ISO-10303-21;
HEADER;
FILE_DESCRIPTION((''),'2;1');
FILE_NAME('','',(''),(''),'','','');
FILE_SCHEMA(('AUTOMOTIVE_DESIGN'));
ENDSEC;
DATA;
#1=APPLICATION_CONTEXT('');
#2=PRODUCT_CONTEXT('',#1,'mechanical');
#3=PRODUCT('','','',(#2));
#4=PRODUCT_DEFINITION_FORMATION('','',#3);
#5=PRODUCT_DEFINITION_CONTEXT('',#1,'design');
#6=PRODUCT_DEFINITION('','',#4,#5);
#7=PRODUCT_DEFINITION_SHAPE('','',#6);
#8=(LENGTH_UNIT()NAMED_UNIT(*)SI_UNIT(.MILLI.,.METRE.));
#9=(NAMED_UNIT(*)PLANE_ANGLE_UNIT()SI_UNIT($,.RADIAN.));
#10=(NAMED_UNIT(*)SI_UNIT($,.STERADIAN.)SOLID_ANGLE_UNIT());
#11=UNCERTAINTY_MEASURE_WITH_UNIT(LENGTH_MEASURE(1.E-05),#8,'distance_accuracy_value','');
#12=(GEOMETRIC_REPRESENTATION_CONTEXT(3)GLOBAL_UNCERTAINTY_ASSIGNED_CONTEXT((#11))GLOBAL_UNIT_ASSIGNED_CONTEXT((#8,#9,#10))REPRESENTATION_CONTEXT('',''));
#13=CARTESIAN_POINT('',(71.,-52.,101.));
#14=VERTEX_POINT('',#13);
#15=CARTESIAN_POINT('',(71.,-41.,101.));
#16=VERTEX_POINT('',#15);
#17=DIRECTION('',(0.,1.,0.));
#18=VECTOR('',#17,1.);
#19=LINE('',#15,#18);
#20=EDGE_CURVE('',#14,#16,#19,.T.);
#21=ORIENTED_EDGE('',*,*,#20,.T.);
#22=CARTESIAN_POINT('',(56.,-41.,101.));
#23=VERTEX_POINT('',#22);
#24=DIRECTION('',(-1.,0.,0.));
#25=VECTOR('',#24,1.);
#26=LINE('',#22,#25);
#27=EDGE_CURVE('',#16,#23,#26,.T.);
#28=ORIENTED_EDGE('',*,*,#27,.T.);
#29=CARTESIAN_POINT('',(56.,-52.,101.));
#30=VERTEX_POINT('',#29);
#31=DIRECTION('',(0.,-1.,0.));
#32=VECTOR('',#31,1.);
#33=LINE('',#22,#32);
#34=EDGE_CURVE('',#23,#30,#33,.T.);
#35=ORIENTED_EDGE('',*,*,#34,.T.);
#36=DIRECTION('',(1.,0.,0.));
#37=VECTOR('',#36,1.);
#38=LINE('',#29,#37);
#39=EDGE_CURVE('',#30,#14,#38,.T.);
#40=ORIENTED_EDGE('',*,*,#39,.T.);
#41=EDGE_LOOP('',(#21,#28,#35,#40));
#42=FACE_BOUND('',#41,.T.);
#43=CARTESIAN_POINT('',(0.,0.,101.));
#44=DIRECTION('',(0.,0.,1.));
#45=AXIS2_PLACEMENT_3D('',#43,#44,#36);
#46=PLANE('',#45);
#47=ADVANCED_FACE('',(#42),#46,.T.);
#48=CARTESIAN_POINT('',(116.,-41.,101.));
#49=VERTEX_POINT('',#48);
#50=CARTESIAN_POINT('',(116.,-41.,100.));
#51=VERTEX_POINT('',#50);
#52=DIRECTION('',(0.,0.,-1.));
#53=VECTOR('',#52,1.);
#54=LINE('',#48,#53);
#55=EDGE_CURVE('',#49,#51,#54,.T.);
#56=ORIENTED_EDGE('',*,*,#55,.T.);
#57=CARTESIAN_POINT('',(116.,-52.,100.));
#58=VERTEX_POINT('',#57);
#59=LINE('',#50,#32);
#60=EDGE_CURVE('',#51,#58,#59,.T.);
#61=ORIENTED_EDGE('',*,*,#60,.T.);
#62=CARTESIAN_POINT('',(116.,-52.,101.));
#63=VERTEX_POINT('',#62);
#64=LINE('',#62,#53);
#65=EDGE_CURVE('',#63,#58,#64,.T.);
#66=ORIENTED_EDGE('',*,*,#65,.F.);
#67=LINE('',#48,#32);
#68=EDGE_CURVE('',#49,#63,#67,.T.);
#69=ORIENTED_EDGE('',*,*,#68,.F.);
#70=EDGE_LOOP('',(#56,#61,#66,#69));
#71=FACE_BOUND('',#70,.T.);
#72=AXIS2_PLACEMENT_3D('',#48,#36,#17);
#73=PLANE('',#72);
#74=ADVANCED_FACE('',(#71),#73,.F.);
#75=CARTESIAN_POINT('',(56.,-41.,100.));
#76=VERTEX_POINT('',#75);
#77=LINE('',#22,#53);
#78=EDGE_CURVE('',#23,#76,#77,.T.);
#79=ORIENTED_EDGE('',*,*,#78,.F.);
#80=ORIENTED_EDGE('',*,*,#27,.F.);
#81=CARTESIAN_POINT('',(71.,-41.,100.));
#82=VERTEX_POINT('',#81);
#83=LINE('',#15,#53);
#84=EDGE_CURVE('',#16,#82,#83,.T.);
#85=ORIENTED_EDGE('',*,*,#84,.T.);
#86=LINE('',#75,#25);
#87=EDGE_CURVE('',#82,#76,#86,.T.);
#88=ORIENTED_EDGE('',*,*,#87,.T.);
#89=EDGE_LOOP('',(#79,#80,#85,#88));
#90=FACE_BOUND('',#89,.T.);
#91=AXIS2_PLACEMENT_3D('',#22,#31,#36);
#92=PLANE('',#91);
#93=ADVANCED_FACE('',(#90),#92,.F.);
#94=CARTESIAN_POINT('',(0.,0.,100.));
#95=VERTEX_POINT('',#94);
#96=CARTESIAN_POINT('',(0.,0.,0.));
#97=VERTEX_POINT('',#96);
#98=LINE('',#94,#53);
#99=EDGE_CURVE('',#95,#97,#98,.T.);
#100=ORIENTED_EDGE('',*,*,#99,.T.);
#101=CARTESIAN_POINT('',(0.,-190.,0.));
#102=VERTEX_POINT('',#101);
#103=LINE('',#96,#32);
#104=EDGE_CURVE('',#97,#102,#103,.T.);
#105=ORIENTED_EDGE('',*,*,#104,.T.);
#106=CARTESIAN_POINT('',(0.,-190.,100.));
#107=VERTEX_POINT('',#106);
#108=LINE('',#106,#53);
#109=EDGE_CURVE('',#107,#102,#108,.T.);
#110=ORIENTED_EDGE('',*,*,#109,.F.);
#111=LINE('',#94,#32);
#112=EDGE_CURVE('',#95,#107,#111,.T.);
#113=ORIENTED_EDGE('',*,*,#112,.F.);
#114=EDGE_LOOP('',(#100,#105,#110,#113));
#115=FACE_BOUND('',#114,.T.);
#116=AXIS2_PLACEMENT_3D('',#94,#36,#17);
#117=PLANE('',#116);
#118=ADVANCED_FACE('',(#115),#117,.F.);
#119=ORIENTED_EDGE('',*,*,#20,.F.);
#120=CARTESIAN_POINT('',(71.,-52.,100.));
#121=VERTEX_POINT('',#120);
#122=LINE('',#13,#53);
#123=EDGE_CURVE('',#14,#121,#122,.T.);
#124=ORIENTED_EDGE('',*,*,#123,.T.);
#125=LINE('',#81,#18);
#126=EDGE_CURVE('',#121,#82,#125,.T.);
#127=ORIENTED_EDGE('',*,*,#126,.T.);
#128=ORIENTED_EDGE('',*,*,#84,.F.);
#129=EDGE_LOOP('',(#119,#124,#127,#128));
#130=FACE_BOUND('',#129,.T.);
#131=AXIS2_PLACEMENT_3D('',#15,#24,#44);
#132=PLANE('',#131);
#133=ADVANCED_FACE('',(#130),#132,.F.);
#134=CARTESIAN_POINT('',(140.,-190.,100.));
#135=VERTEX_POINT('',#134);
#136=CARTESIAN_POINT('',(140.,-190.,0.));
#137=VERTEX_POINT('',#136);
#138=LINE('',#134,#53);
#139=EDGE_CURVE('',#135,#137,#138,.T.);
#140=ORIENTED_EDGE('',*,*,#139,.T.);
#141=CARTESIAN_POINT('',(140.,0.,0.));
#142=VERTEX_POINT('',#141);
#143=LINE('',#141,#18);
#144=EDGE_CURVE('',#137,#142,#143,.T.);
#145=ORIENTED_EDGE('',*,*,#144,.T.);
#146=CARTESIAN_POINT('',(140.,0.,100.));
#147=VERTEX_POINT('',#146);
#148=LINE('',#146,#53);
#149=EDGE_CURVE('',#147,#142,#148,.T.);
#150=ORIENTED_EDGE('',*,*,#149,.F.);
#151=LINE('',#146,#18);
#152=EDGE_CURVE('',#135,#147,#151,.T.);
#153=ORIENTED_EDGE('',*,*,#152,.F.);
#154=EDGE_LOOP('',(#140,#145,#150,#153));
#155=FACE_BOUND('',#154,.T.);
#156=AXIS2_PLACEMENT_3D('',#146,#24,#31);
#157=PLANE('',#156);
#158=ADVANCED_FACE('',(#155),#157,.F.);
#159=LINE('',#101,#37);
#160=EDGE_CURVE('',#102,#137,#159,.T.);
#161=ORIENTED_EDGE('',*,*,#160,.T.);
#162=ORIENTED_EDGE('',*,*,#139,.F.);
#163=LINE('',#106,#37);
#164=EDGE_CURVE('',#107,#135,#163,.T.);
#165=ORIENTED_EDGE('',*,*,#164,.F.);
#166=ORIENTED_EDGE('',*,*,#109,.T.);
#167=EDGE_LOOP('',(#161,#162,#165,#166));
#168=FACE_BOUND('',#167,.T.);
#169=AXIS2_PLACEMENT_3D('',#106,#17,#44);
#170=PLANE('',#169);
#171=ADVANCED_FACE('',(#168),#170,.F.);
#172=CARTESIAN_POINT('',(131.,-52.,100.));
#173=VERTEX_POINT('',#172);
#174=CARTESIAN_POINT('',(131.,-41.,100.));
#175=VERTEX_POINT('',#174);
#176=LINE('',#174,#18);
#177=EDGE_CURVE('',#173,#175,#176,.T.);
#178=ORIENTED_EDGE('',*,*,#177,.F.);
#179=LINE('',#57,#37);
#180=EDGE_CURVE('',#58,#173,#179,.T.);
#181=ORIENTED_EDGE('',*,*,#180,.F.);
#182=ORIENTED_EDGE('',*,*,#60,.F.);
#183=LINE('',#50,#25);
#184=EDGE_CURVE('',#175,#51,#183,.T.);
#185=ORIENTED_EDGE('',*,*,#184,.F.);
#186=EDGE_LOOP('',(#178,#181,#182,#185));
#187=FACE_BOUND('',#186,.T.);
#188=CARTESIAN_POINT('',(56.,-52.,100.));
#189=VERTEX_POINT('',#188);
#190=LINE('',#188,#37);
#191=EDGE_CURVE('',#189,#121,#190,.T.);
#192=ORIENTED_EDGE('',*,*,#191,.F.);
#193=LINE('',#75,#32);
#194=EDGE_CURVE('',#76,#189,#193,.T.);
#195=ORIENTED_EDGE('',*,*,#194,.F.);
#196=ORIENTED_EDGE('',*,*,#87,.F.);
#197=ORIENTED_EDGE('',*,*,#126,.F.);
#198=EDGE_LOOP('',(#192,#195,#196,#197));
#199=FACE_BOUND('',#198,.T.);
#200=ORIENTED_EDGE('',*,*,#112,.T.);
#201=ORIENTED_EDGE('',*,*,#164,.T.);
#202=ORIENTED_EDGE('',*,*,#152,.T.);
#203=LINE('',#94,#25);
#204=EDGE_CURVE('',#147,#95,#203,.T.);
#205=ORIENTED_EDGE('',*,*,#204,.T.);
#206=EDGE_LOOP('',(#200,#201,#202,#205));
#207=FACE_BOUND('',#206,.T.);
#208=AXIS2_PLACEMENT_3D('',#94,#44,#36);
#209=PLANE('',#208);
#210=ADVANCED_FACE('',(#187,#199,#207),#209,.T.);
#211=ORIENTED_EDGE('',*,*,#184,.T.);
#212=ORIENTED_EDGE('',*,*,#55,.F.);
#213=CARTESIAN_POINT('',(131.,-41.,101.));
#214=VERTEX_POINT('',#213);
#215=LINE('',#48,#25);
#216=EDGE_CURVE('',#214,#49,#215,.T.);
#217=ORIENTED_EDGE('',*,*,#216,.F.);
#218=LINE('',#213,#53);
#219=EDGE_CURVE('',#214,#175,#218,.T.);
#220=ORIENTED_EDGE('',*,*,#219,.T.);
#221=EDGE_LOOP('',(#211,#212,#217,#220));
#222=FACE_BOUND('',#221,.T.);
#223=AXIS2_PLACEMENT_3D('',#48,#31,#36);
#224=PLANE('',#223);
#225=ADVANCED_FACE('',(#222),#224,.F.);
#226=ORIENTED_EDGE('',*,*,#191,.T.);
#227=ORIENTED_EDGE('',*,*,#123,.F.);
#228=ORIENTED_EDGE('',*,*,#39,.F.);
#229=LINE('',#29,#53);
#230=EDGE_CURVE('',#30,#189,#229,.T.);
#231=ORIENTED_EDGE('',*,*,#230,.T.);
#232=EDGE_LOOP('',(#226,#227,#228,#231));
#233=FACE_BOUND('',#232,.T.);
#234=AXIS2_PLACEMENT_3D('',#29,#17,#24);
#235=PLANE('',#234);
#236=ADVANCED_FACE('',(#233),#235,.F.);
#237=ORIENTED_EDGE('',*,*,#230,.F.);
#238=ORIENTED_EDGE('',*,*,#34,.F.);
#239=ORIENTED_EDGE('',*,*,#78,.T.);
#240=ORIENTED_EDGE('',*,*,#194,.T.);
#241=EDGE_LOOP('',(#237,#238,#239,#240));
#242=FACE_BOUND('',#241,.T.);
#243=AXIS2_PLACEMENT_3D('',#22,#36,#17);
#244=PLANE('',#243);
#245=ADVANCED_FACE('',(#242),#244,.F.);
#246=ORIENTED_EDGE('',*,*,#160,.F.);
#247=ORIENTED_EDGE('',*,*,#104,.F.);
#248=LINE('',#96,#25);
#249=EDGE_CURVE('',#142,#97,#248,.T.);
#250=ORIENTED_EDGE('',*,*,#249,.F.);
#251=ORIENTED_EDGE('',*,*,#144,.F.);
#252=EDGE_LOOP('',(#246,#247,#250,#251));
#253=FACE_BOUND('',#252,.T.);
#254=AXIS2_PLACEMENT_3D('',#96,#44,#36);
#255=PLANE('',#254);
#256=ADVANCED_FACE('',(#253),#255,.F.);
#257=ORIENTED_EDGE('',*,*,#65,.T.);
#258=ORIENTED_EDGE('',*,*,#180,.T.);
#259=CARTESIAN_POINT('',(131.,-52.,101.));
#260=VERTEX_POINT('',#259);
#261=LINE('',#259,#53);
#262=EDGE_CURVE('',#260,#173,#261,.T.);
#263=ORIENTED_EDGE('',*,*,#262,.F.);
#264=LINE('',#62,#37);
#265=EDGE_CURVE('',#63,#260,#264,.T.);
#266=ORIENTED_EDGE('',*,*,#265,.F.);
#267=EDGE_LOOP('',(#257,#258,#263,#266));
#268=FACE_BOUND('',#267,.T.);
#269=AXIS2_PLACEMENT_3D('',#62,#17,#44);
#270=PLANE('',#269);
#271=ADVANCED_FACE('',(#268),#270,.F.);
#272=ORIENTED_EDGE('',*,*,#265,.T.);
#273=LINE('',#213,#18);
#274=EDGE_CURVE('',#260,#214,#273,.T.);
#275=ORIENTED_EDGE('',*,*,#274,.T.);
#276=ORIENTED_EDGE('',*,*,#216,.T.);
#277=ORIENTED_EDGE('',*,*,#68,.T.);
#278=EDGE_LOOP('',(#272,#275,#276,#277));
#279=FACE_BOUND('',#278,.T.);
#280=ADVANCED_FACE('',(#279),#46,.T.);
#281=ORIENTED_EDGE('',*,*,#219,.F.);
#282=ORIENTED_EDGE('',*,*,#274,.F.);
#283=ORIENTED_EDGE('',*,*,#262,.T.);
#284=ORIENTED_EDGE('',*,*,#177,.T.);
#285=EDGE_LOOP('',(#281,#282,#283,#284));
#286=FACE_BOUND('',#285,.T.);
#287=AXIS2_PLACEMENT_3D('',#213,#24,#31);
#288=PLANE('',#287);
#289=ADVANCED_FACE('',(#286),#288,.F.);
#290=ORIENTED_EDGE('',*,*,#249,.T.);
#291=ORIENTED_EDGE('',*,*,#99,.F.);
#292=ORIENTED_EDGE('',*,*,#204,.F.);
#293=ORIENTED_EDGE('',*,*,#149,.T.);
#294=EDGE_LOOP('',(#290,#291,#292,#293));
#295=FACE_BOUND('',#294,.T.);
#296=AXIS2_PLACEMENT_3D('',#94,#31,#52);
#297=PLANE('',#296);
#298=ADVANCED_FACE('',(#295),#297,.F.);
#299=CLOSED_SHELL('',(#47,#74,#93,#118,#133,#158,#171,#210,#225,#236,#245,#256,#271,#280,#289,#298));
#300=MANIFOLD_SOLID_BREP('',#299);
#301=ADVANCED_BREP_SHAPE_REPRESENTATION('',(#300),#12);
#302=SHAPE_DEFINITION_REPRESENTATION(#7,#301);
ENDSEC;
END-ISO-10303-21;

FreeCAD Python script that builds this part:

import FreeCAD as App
import Part
import Sketcher
Q = App.Units.Quantity

doc = App.newDocument("Part")
body = doc.addObject("PartDesign::Body", "Body")

sketch1 = body.newObject("Sketcher::SketchObject", "Sketch")
sketch1.AttachmentSupport = (doc.getObject("XY_Plane"), [""])
sketch1.MapMode = "FlatFace"
sketch1.addGeometry(Part.LineSegment(App.Vector(0, 0, 0), App.Vector(0, -190, 0)), False)
sketch1.addGeometry(Part.LineSegment(App.Vector(0, -190, 0), App.Vector(140, -190, 0)), False)
sketch1.addGeometry(Part.LineSegment(App.Vector(140, -190, 0), App.Vector(140, 0, 0)), False)
sketch1.addGeometry(Part.LineSegment(App.Vector(140, 0, 0), App.Vector(0, 0, 0)), False)
sketch1.addConstraint(Sketcher.Constraint("Coincident", 0, 2, 1, 1))
sketch1.addConstraint(Sketcher.Constraint("Coincident", 1, 2, 2, 1))
sketch1.addConstraint(Sketcher.Constraint("Coincident", 2, 2, 3, 1))
sketch1.addConstraint(Sketcher.Constraint("Coincident", 3, 2, 0, 1))
sketch1.addConstraint(Sketcher.Constraint("Vertical", 0))
sketch1.addConstraint(Sketcher.Constraint("Horizontal", 1))
sketch1.addConstraint(Sketcher.Constraint("Vertical", 2))
sketch1.addConstraint(Sketcher.Constraint("Horizontal", 3))
sketch1.addConstraint(Sketcher.Constraint("Coincident", 3, 2, -1, 1))
sketch1.addConstraint(Sketcher.Constraint("DistanceX", 1, 1, 1, 2, Q("140 mm")))
sketch1.addConstraint(Sketcher.Constraint("DistanceY", 0, 2, 0, 1, Q("190 mm")))
pad1 = body.newObject("PartDesign::Pad", "Pad")
pad1.Profile = sketch1
pad1.Length = 100

sketch2 = body.newObject("Sketcher::SketchObject", "Sketch001")
sketch2.AttachmentSupport = (doc.getObject("XY_Plane"), [""])
sketch2.MapMode = "FlatFace"
sketch2.AttachmentOffset = App.Placement(App.Vector(0, 0, 100), App.Rotation())
sketch2.addGeometry(Part.LineSegment(App.Vector(116, -41, 0), App.Vector(116, -52, 0)), False)
sketch2.addGeometry(Part.LineSegment(App.Vector(116, -52, 0), App.Vector(131, -52, 0)), False)
sketch2.addGeometry(Part.LineSegment(App.Vector(131, -52, 0), App.Vector(131, -41, 0)), False)
sketch2.addGeometry(Part.LineSegment(App.Vector(131, -41, 0), App.Vector(116, -41, 0)), False)
sketch2.addGeometry(Part.LineSegment(App.Vector(56, -41, 0), App.Vector(56, -52, 0)), False)
sketch2.addGeometry(Part.LineSegment(App.Vector(56, -52, 0), App.Vector(71, -52, 0)), False)
sketch2.addGeometry(Part.LineSegment(App.Vector(71, -52, 0), App.Vector(71, -41, 0)), False)
sketch2.addGeometry(Part.LineSegment(App.Vector(71, -41, 0), App.Vector(56, -41, 0)), False)
sketch2.addConstraint(Sketcher.Constraint("Coincident", 0, 2, 1, 1))
sketch2.addConstraint(Sketcher.Constraint("Coincident", 1, 2, 2, 1))
sketch2.addConstraint(Sketcher.Constraint("Coincident", 2, 2, 3, 1))
sketch2.addConstraint(Sketcher.Constraint("Coincident", 3, 2, 0, 1))
sketch2.addConstraint(Sketcher.Constraint("Coincident", 4, 2, 5, 1))
sketch2.addConstraint(Sketcher.Constraint("Coincident", 5, 2, 6, 1))
sketch2.addConstraint(Sketcher.Constraint("Coincident", 6, 2, 7, 1))
sketch2.addConstraint(Sketcher.Constraint("Coincident", 7, 2, 4, 1))
sketch2.addConstraint(Sketcher.Constraint("Vertical", 0))
sketch2.addConstraint(Sketcher.Constraint("Horizontal", 1))
sketch2.addConstraint(Sketcher.Constraint("Vertical", 2))
sketch2.addConstraint(Sketcher.Constraint("Horizontal", 3))
sketch2.addConstraint(Sketcher.Constraint("Vertical", 4))
sketch2.addConstraint(Sketcher.Constraint("Horizontal", 5))
sketch2.addConstraint(Sketcher.Constraint("Vertical", 6))
sketch2.addConstraint(Sketcher.Constraint("Horizontal", 7))
sketch2.addConstraint(Sketcher.Constraint("Horizontal", 1, 2, 4, 2))
sketch2.addConstraint(Sketcher.Constraint("Horizontal", 3, 2, 6, 2))
sketch2.addConstraint(Sketcher.Constraint("Equal", 3, 5))
sketch2.addConstraint(Sketcher.Constraint("DistanceX", 1, 1, 1, 2, Q("15 mm")))
sketch2.addConstraint(Sketcher.Constraint("DistanceY", 0, 2, 0, 1, Q("11 mm")))
sketch2.addConstraint(Sketcher.Constraint("DistanceX", -1, 1, 0, 2, Q("116 mm")))
sketch2.addConstraint(Sketcher.Constraint("DistanceY", 0, 2, -1, 1, Q("52 mm")))
sketch2.addConstraint(Sketcher.Constraint("DistanceX", -1, 1, 4, 2, Q("56 mm")))
pad2 = body.newObject("PartDesign::Pad", "Pad001")
pad2.Profile = sketch2
pad2.Length = 1

doc.recompute()
